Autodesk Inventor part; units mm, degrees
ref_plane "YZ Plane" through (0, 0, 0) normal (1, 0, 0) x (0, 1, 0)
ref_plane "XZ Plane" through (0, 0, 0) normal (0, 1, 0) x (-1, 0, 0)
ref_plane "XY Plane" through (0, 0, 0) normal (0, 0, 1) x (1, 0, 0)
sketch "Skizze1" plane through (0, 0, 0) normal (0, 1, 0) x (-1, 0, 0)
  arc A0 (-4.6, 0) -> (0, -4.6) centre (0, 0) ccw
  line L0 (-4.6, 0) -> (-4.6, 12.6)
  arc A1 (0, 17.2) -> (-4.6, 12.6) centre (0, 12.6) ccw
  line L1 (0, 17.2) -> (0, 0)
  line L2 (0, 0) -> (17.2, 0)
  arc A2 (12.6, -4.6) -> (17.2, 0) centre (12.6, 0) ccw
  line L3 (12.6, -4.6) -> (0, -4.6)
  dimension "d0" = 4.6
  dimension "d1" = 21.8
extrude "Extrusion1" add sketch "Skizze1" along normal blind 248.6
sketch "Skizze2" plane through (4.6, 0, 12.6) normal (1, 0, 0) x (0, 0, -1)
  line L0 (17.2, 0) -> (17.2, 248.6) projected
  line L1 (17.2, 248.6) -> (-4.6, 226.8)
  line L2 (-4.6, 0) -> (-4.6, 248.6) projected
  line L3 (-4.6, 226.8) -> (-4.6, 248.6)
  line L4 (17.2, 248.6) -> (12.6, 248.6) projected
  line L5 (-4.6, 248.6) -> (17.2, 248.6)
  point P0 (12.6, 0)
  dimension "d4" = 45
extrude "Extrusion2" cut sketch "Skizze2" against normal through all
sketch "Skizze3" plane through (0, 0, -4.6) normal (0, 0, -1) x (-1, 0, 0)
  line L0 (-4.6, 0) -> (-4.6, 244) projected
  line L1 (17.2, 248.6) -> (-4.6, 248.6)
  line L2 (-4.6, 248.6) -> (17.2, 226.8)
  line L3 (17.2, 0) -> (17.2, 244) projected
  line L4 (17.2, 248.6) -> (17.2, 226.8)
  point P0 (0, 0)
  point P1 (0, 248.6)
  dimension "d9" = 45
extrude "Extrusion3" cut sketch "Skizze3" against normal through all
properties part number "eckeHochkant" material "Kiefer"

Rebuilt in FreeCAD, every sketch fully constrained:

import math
import FreeCAD as App
import Part
import Sketcher
from FreeCAD import Vector
Q = App.Units.Quantity


def add_polygon(sketch, points):
    """Adds a closed chain of lines whose ends are joined by coincident constraints."""
    first, n = sketch.GeometryCount, len(points)
    for a, b in zip(points, points[1:] + points[:1]):
        sketch.addGeometry(Part.LineSegment(App.Vector(*a, 0), App.Vector(*b, 0)), False)
    for i in range(n):
        sketch.addConstraint(Sketcher.Constraint("Coincident", first + i, 2, first + (i + 1) % n, 1))

doc = App.newDocument("Part")
body = doc.addObject("PartDesign::Body", "Body")

sketch1 = doc.addObject("Sketcher::SketchObject", "Sketch")
body.addObject(sketch1)
sketch1.AttachmentSupport = (doc.XZ_Plane, [""])
sketch1.MapMode = "FlatFace"
sketch1.addGeometry([
    Part.LineSegment(Vector(4.6, 12.6, 0), Vector(4.6, 0, 0)),
    Part.ArcOfCircle(Part.Circle(Vector(0, 0, 0), Vector(0, 0, 1), 4.6), math.radians(-90), math.radians(0)),
    Part.LineSegment(Vector(0, -4.6, 0), Vector(-12.6, -4.6, 0)),
    Part.ArcOfCircle(Part.Circle(Vector(-12.6, 0, 0), Vector(0, 0, 1), 4.6), math.radians(180), math.radians(270)),
    Part.LineSegment(Vector(-17.2, 0, 0), Vector(0, 0, 0)),
    Part.LineSegment(Vector(0, 0, 0), Vector(0, 17.2, 0)),
    Part.ArcOfCircle(Part.Circle(Vector(0, 12.6, 0), Vector(0, 0, 1), 4.6), math.radians(0), math.radians(90)),
], False)
sketch1.addConstraint([
    Sketcher.Constraint("Tangent", 0, 2, 1, 2),
    Sketcher.Constraint("Tangent", 1, 1, 2, 1),
    Sketcher.Constraint("Tangent", 2, 2, 3, 2),
    Sketcher.Constraint("Coincident", 3, 1, 4, 1),
    Sketcher.Constraint("Coincident", 4, 2, 5, 1),
    Sketcher.Constraint("Coincident", 5, 2, 6, 2),
    Sketcher.Constraint("Tangent", 6, 1, 0, 1),
    Sketcher.Constraint("Vertical", 0),
    Sketcher.Constraint("Horizontal", 2),
    Sketcher.Constraint("Horizontal", 4),
    Sketcher.Constraint("Vertical", 5),
    Sketcher.Constraint("Coincident", 1, 3, -1, 1),
    Sketcher.Constraint("Coincident", 4, 2, -1, 1),
    Sketcher.Constraint("Equal", 1, 3),
    Sketcher.Constraint("Equal", 3, 6),
    Sketcher.Constraint("Equal", 2, 0),
    Sketcher.Constraint("Radius", 1, Q("4.6 mm")),
    Sketcher.Constraint("DistanceX", 2, 2, 2, 1, Q("12.6 mm")),
])
pad1 = doc.addObject("PartDesign::Pad", "Pad")
body.addObject(pad1)
pad1.Profile = sketch1
pad1.Length = 248.6
pad1.Reversed = True

sketch2 = doc.addObject("Sketcher::SketchObject", "Sketch001")
body.addObject(sketch2)
sketch2.AttachmentSupport = (doc.YZ_Plane, [""])
sketch2.MapMode = "FlatFace"
sketch2.AttachmentOffset = App.Placement(Vector(0, 0, 4.6), App.Rotation())
add_polygon(sketch2, [(227, 17), (249, -5), (249, 17)])
sketch2.addConstraint([
    Sketcher.Constraint("Vertical", 1),
    Sketcher.Constraint("Horizontal", 2),
    Sketcher.Constraint("Equal", 2, 1),
    Sketcher.Constraint("DistanceX", 2, 2, 2, 1, Q("21.8 mm")),
    Sketcher.Constraint("DistanceX", -1, 1, 0, 2, Q("248.6 mm")),
    Sketcher.Constraint("DistanceY", 0, 2, -1, 1, Q("4.6 mm")),
])
pocket1 = doc.addObject("PartDesign::Pocket", "Pocket")
body.addObject(pocket1)
pocket1.Profile = sketch2
pocket1.Type = "ThroughAll"

sketch3 = doc.addObject("Sketcher::SketchObject", "Sketch002")
body.addObject(sketch3)
sketch3.AttachmentSupport = (doc.XY_Plane, [""])
sketch3.MapMode = "FlatFace"
sketch3.AttachmentOffset = App.Placement(Vector(0, 0, -4.6), App.Rotation())
add_polygon(sketch3, [(-17, 227), (-17, 249), (5, 249)])
sketch3.addConstraint([
    Sketcher.Constraint("Vertical", 0),
    Sketcher.Constraint("Horizontal", 1),
    Sketcher.Constraint("Equal", 1, 0),
    Sketcher.Constraint("DistanceX", 1, 1, 1, 2, Q("21.8 mm")),
    Sketcher.Constraint("DistanceX", 0, 2, -1, 1, Q("17.2 mm")),
    Sketcher.Constraint("DistanceY", -1, 1, 0, 2, Q("248.6 mm")),
])
pocket2 = doc.addObject("PartDesign::Pocket", "Pocket001")
body.addObject(pocket2)
pocket2.Profile = sketch3
pocket2.Type = "ThroughAll"
pocket2.Reversed = True

doc.recompute()
